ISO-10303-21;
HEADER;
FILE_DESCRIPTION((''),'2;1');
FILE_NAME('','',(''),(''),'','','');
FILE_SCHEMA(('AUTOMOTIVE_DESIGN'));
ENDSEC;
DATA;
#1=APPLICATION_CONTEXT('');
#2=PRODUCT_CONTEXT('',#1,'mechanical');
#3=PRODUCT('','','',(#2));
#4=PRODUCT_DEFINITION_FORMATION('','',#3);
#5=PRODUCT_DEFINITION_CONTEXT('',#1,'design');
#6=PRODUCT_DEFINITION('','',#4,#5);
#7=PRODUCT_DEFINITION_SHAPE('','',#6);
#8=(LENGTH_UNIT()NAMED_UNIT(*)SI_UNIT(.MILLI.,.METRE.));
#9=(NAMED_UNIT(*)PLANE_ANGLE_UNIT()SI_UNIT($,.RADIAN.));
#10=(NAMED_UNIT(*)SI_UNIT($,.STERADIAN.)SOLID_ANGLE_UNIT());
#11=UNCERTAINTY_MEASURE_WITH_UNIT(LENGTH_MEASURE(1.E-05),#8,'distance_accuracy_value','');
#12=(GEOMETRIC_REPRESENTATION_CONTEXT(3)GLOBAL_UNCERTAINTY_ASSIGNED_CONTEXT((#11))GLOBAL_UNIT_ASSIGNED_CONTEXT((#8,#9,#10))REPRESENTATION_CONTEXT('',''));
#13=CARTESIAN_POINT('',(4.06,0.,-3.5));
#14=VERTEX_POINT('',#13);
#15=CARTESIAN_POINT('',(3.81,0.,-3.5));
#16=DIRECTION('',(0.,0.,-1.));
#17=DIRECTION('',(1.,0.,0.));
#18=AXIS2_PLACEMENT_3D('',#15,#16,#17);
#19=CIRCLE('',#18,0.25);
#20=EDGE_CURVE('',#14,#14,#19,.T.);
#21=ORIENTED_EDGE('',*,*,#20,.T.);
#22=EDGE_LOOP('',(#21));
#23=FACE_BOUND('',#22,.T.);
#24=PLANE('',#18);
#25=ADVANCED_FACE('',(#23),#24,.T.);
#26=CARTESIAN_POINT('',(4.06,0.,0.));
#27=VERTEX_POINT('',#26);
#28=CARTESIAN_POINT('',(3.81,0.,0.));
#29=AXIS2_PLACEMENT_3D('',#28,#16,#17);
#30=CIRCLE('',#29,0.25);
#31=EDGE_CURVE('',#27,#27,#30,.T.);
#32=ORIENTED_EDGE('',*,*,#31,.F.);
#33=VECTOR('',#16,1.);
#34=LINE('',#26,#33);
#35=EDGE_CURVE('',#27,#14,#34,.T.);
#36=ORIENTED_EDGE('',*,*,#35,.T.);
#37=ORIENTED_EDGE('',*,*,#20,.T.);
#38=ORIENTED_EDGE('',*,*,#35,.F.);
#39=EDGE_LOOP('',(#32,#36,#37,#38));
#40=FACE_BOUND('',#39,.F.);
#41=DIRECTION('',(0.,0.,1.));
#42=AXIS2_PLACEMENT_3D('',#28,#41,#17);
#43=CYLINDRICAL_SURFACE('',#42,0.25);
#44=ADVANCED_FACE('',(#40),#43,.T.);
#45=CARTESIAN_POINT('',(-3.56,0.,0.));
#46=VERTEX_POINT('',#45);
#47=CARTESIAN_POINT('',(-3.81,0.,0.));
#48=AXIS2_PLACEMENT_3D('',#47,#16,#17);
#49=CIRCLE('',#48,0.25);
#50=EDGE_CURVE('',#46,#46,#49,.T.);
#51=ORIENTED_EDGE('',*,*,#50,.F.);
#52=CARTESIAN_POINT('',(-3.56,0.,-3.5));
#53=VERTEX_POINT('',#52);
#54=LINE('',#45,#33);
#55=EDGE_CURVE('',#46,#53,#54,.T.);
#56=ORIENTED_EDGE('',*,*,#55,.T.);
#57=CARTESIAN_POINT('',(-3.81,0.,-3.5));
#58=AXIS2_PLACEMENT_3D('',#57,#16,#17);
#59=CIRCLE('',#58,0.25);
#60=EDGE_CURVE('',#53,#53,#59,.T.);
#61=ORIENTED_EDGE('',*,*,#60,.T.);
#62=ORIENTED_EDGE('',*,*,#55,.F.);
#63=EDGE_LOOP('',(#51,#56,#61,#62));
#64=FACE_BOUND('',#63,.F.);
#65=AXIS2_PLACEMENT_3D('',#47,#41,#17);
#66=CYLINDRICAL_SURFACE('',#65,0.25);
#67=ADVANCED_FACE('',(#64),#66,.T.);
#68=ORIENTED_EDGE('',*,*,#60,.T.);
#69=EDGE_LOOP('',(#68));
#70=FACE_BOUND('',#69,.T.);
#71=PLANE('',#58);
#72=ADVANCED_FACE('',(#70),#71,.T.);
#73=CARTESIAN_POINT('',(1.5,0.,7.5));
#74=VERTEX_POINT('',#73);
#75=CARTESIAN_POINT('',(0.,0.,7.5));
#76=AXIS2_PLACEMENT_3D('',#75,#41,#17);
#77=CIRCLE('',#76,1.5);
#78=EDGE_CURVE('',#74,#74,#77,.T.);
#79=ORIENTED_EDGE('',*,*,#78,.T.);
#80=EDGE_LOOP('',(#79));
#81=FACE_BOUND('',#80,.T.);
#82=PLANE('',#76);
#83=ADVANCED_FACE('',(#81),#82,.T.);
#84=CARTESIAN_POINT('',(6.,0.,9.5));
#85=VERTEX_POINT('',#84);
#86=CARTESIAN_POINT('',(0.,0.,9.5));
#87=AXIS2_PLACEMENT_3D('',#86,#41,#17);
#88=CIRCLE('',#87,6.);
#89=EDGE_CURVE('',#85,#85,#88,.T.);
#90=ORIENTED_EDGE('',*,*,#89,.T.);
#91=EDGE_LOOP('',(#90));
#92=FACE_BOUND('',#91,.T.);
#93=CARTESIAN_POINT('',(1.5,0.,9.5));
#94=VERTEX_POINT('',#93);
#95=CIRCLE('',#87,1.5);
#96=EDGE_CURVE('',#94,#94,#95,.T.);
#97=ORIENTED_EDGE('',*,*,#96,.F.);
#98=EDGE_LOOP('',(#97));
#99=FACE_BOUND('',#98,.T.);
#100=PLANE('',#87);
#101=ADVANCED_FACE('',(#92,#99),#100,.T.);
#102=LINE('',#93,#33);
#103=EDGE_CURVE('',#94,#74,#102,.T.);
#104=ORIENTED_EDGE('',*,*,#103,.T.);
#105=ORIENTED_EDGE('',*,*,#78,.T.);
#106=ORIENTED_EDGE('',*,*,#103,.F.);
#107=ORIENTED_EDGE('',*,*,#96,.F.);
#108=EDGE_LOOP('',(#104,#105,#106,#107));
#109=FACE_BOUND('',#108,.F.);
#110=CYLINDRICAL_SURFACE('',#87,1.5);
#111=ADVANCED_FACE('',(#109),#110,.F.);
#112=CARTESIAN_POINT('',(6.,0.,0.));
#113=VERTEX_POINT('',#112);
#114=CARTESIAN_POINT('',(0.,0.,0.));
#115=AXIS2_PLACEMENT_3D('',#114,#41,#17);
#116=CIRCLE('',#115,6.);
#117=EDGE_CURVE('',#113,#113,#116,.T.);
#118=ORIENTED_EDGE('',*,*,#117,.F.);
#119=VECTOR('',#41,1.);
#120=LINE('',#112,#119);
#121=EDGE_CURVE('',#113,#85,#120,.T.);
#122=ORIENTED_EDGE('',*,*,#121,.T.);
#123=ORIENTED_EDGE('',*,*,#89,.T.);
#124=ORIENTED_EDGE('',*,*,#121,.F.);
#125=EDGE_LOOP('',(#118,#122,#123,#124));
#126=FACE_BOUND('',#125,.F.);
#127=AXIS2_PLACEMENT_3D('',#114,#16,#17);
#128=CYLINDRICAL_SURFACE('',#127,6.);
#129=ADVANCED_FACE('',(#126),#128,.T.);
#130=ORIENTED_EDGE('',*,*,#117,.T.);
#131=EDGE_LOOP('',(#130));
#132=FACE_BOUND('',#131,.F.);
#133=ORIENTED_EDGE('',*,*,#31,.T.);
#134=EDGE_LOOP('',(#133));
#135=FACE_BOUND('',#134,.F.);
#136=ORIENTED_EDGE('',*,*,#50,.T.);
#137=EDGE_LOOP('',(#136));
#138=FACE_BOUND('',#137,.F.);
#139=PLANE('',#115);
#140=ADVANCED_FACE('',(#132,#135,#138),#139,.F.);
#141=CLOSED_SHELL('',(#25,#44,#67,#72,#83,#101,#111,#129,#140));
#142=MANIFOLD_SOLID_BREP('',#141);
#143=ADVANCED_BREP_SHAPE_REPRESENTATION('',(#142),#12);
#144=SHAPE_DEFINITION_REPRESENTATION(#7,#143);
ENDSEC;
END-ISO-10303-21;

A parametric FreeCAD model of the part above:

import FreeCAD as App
import Part
import Sketcher
from FreeCAD import Vector
Q = App.Units.Quantity

doc = App.newDocument("Part")
body = doc.addObject("PartDesign::Body", "Body")

sketch1 = body.newObject("Sketcher::SketchObject", "Sketch")
sketch1.AttachmentSupport = (doc.getObject("XY_Plane"), [""])
sketch1.MapMode = "FlatFace"
sketch1.addGeometry(Part.Circle(Vector(0, 0, 0), Vector(0, 0, 1), 6), False)
sketch1.addConstraint([
    Sketcher.Constraint("Coincident", 0, 3, -1, 1),
    Sketcher.Constraint("Diameter", 0, Q("12 mm")),
])
pad1 = body.newObject("PartDesign::Pad", "Pad")
pad1.Profile = sketch1
pad1.Length = 9.5

sketch2 = body.newObject("Sketcher::SketchObject", "Sketch001")
sketch2.AttachmentSupport = (doc.getObject("XY_Plane"), [""])
sketch2.MapMode = "FlatFace"
sketch2.AttachmentOffset = App.Placement(Vector(0, 0, 9.5), App.Rotation())
sketch2.addGeometry(Part.Circle(Vector(0, 0, 0), Vector(0, 0, 1), 1.5), False)
sketch2.addConstraint([
    Sketcher.Constraint("Coincident", 0, 3, -1, 1),
    Sketcher.Constraint("Diameter", 0, Q("3 mm")),
])
pocket1 = body.newObject("PartDesign::Pocket", "Pocket")
pocket1.Profile = sketch2
pocket1.Length = 2

sketch3 = body.newObject("Sketcher::SketchObject", "Sketch002")
sketch3.AttachmentSupport = (doc.getObject("XY_Plane"), [""])
sketch3.MapMode = "FlatFace"
sketch3.addGeometry([
    Part.Circle(Vector(-3.81, 0, 0), Vector(0, 0, 1), 0.25),
    Part.Circle(Vector(3.81, 0, 0), Vector(0, 0, 1), 0.25),
], False)
sketch3.addConstraint([
    Sketcher.Constraint("Equal", 0, 1),
    Sketcher.Constraint("Symmetric", 0, 3, 1, 3, -1, 1),
    Sketcher.Constraint("PointOnObject", 0, 3, -1),
    Sketcher.Constraint("Diameter", 0, Q("0.5 mm")),
    Sketcher.Constraint("DistanceX", 0, 3, -1, 1, Q("3.81 mm")),
])
pad2 = body.newObject("PartDesign::Pad", "Pad001")
pad2.Profile = sketch3
pad2.Length = 3.5
pad2.Reversed = True

doc.recompute()
